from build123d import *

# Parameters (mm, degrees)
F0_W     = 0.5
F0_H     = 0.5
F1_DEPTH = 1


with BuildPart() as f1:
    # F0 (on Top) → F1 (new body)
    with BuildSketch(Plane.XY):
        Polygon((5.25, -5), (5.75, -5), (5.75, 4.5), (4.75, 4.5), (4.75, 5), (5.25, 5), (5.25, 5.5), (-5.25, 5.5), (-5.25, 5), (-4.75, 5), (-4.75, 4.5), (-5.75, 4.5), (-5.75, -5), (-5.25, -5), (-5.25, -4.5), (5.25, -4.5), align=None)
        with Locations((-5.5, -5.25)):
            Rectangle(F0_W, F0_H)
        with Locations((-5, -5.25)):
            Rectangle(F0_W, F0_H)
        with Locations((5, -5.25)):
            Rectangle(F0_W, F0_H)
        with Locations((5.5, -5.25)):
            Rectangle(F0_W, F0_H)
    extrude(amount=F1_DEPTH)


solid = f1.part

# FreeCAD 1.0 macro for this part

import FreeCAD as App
import Part
import Sketcher


def add_polygon(sketch, points):
    """Adds a closed chain of lines whose ends are joined by coincident constraints."""
    first, n = sketch.GeometryCount, len(points)
    for a, b in zip(points, points[1:] + points[:1]):
        sketch.addGeometry(Part.LineSegment(App.Vector(*a, 0), App.Vector(*b, 0)), False)
    for i in range(n):
        sketch.addConstraint(Sketcher.Constraint("Coincident", first + i, 2, first + (i + 1) % n, 1))

doc = App.newDocument("Part")
body = doc.addObject("PartDesign::Body", "Body")

# Sketch on XY plane
sketch1 = body.newObject("Sketcher::SketchObject", "Sketch")
sketch1.AttachmentSupport = (doc.getObject("XY_Plane"), [""])
sketch1.MapMode = "FlatFace"
add_polygon(sketch1, [(5.8, 4.5), (4.8, 4.5), (4.8, 5), (5.2, 5), (5.2, 5.5), (-5.2, 5.5), (-5.2, 5), (-4.8, 5), (-4.8, 4.5), (-5.8, 4.5), (-5.8, -5.5), (-4.8, -5.5), (-4.8, -5), (-5.2, -5), (-5.2, -4.5), (5.2, -4.5), (5.2, -5), (4.8, -5), (4.8, -5.5), (5.8, -5.5)])  # lines 0-19
sketch1.addConstraint([
    Sketcher.Constraint("Horizontal", 0),
    Sketcher.Constraint("Vertical", 1),
    Sketcher.Constraint("Horizontal", 2),
    Sketcher.Constraint("Vertical", 3),
    Sketcher.Constraint("Horizontal", 4),
    Sketcher.Constraint("Vertical", 5),
    Sketcher.Constraint("Horizontal", 6),
    Sketcher.Constraint("Vertical", 7),
    Sketcher.Constraint("Horizontal", 8),
    Sketcher.Constraint("Vertical", 9),
    Sketcher.Constraint("Horizontal", 10),
    Sketcher.Constraint("Vertical", 11),
    Sketcher.Constraint("Horizontal", 12),
    Sketcher.Constraint("Vertical", 13),
    Sketcher.Constraint("Horizontal", 14),
    Sketcher.Constraint("Vertical", 15),
    Sketcher.Constraint("Horizontal", 16),
    Sketcher.Constraint("Vertical", 17),
    Sketcher.Constraint("Horizontal", 18),
    Sketcher.Constraint("Vertical", 19),
    Sketcher.Constraint("Symmetric", 1, 2, 11, 2, -1, 1),
    Sketcher.Constraint("Symmetric", 5, 2, 15, 2, -1, 1),
    Sketcher.Constraint("Symmetric", 2, 2, 5, 2, -2),
    Sketcher.Constraint("Symmetric", 0, 2, 7, 2, -2),
    Sketcher.Constraint("Symmetric", 10, 2, 17, 2, -2),
    Sketcher.Constraint("Vertical", 5, 2, 12, 2),
    Sketcher.Constraint("Equal", 0, 8),
    Sketcher.Constraint("Equal", 16, 1),
    Sketcher.Constraint("Equal", 1, 3),
    Sketcher.Constraint("Equal", 7, 11),
    Sketcher.Constraint("Equal", 11, 13),
    Sketcher.Constraint("DistanceX", 0, 2, 0, 1, 1.0),
    Sketcher.Constraint("DistanceY", 9, 2, 9, 1, 10.0),
    Sketcher.Constraint("DistanceX", 2, 1, 2, 2, 0.5),
    Sketcher.Constraint("DistanceX", 4, 2, 4, 1, 10.5),
])
pad1 = body.newObject("PartDesign::Pad", "Pad")
pad1.Profile = sketch1
pad1.Length = 1

doc.recompute()
